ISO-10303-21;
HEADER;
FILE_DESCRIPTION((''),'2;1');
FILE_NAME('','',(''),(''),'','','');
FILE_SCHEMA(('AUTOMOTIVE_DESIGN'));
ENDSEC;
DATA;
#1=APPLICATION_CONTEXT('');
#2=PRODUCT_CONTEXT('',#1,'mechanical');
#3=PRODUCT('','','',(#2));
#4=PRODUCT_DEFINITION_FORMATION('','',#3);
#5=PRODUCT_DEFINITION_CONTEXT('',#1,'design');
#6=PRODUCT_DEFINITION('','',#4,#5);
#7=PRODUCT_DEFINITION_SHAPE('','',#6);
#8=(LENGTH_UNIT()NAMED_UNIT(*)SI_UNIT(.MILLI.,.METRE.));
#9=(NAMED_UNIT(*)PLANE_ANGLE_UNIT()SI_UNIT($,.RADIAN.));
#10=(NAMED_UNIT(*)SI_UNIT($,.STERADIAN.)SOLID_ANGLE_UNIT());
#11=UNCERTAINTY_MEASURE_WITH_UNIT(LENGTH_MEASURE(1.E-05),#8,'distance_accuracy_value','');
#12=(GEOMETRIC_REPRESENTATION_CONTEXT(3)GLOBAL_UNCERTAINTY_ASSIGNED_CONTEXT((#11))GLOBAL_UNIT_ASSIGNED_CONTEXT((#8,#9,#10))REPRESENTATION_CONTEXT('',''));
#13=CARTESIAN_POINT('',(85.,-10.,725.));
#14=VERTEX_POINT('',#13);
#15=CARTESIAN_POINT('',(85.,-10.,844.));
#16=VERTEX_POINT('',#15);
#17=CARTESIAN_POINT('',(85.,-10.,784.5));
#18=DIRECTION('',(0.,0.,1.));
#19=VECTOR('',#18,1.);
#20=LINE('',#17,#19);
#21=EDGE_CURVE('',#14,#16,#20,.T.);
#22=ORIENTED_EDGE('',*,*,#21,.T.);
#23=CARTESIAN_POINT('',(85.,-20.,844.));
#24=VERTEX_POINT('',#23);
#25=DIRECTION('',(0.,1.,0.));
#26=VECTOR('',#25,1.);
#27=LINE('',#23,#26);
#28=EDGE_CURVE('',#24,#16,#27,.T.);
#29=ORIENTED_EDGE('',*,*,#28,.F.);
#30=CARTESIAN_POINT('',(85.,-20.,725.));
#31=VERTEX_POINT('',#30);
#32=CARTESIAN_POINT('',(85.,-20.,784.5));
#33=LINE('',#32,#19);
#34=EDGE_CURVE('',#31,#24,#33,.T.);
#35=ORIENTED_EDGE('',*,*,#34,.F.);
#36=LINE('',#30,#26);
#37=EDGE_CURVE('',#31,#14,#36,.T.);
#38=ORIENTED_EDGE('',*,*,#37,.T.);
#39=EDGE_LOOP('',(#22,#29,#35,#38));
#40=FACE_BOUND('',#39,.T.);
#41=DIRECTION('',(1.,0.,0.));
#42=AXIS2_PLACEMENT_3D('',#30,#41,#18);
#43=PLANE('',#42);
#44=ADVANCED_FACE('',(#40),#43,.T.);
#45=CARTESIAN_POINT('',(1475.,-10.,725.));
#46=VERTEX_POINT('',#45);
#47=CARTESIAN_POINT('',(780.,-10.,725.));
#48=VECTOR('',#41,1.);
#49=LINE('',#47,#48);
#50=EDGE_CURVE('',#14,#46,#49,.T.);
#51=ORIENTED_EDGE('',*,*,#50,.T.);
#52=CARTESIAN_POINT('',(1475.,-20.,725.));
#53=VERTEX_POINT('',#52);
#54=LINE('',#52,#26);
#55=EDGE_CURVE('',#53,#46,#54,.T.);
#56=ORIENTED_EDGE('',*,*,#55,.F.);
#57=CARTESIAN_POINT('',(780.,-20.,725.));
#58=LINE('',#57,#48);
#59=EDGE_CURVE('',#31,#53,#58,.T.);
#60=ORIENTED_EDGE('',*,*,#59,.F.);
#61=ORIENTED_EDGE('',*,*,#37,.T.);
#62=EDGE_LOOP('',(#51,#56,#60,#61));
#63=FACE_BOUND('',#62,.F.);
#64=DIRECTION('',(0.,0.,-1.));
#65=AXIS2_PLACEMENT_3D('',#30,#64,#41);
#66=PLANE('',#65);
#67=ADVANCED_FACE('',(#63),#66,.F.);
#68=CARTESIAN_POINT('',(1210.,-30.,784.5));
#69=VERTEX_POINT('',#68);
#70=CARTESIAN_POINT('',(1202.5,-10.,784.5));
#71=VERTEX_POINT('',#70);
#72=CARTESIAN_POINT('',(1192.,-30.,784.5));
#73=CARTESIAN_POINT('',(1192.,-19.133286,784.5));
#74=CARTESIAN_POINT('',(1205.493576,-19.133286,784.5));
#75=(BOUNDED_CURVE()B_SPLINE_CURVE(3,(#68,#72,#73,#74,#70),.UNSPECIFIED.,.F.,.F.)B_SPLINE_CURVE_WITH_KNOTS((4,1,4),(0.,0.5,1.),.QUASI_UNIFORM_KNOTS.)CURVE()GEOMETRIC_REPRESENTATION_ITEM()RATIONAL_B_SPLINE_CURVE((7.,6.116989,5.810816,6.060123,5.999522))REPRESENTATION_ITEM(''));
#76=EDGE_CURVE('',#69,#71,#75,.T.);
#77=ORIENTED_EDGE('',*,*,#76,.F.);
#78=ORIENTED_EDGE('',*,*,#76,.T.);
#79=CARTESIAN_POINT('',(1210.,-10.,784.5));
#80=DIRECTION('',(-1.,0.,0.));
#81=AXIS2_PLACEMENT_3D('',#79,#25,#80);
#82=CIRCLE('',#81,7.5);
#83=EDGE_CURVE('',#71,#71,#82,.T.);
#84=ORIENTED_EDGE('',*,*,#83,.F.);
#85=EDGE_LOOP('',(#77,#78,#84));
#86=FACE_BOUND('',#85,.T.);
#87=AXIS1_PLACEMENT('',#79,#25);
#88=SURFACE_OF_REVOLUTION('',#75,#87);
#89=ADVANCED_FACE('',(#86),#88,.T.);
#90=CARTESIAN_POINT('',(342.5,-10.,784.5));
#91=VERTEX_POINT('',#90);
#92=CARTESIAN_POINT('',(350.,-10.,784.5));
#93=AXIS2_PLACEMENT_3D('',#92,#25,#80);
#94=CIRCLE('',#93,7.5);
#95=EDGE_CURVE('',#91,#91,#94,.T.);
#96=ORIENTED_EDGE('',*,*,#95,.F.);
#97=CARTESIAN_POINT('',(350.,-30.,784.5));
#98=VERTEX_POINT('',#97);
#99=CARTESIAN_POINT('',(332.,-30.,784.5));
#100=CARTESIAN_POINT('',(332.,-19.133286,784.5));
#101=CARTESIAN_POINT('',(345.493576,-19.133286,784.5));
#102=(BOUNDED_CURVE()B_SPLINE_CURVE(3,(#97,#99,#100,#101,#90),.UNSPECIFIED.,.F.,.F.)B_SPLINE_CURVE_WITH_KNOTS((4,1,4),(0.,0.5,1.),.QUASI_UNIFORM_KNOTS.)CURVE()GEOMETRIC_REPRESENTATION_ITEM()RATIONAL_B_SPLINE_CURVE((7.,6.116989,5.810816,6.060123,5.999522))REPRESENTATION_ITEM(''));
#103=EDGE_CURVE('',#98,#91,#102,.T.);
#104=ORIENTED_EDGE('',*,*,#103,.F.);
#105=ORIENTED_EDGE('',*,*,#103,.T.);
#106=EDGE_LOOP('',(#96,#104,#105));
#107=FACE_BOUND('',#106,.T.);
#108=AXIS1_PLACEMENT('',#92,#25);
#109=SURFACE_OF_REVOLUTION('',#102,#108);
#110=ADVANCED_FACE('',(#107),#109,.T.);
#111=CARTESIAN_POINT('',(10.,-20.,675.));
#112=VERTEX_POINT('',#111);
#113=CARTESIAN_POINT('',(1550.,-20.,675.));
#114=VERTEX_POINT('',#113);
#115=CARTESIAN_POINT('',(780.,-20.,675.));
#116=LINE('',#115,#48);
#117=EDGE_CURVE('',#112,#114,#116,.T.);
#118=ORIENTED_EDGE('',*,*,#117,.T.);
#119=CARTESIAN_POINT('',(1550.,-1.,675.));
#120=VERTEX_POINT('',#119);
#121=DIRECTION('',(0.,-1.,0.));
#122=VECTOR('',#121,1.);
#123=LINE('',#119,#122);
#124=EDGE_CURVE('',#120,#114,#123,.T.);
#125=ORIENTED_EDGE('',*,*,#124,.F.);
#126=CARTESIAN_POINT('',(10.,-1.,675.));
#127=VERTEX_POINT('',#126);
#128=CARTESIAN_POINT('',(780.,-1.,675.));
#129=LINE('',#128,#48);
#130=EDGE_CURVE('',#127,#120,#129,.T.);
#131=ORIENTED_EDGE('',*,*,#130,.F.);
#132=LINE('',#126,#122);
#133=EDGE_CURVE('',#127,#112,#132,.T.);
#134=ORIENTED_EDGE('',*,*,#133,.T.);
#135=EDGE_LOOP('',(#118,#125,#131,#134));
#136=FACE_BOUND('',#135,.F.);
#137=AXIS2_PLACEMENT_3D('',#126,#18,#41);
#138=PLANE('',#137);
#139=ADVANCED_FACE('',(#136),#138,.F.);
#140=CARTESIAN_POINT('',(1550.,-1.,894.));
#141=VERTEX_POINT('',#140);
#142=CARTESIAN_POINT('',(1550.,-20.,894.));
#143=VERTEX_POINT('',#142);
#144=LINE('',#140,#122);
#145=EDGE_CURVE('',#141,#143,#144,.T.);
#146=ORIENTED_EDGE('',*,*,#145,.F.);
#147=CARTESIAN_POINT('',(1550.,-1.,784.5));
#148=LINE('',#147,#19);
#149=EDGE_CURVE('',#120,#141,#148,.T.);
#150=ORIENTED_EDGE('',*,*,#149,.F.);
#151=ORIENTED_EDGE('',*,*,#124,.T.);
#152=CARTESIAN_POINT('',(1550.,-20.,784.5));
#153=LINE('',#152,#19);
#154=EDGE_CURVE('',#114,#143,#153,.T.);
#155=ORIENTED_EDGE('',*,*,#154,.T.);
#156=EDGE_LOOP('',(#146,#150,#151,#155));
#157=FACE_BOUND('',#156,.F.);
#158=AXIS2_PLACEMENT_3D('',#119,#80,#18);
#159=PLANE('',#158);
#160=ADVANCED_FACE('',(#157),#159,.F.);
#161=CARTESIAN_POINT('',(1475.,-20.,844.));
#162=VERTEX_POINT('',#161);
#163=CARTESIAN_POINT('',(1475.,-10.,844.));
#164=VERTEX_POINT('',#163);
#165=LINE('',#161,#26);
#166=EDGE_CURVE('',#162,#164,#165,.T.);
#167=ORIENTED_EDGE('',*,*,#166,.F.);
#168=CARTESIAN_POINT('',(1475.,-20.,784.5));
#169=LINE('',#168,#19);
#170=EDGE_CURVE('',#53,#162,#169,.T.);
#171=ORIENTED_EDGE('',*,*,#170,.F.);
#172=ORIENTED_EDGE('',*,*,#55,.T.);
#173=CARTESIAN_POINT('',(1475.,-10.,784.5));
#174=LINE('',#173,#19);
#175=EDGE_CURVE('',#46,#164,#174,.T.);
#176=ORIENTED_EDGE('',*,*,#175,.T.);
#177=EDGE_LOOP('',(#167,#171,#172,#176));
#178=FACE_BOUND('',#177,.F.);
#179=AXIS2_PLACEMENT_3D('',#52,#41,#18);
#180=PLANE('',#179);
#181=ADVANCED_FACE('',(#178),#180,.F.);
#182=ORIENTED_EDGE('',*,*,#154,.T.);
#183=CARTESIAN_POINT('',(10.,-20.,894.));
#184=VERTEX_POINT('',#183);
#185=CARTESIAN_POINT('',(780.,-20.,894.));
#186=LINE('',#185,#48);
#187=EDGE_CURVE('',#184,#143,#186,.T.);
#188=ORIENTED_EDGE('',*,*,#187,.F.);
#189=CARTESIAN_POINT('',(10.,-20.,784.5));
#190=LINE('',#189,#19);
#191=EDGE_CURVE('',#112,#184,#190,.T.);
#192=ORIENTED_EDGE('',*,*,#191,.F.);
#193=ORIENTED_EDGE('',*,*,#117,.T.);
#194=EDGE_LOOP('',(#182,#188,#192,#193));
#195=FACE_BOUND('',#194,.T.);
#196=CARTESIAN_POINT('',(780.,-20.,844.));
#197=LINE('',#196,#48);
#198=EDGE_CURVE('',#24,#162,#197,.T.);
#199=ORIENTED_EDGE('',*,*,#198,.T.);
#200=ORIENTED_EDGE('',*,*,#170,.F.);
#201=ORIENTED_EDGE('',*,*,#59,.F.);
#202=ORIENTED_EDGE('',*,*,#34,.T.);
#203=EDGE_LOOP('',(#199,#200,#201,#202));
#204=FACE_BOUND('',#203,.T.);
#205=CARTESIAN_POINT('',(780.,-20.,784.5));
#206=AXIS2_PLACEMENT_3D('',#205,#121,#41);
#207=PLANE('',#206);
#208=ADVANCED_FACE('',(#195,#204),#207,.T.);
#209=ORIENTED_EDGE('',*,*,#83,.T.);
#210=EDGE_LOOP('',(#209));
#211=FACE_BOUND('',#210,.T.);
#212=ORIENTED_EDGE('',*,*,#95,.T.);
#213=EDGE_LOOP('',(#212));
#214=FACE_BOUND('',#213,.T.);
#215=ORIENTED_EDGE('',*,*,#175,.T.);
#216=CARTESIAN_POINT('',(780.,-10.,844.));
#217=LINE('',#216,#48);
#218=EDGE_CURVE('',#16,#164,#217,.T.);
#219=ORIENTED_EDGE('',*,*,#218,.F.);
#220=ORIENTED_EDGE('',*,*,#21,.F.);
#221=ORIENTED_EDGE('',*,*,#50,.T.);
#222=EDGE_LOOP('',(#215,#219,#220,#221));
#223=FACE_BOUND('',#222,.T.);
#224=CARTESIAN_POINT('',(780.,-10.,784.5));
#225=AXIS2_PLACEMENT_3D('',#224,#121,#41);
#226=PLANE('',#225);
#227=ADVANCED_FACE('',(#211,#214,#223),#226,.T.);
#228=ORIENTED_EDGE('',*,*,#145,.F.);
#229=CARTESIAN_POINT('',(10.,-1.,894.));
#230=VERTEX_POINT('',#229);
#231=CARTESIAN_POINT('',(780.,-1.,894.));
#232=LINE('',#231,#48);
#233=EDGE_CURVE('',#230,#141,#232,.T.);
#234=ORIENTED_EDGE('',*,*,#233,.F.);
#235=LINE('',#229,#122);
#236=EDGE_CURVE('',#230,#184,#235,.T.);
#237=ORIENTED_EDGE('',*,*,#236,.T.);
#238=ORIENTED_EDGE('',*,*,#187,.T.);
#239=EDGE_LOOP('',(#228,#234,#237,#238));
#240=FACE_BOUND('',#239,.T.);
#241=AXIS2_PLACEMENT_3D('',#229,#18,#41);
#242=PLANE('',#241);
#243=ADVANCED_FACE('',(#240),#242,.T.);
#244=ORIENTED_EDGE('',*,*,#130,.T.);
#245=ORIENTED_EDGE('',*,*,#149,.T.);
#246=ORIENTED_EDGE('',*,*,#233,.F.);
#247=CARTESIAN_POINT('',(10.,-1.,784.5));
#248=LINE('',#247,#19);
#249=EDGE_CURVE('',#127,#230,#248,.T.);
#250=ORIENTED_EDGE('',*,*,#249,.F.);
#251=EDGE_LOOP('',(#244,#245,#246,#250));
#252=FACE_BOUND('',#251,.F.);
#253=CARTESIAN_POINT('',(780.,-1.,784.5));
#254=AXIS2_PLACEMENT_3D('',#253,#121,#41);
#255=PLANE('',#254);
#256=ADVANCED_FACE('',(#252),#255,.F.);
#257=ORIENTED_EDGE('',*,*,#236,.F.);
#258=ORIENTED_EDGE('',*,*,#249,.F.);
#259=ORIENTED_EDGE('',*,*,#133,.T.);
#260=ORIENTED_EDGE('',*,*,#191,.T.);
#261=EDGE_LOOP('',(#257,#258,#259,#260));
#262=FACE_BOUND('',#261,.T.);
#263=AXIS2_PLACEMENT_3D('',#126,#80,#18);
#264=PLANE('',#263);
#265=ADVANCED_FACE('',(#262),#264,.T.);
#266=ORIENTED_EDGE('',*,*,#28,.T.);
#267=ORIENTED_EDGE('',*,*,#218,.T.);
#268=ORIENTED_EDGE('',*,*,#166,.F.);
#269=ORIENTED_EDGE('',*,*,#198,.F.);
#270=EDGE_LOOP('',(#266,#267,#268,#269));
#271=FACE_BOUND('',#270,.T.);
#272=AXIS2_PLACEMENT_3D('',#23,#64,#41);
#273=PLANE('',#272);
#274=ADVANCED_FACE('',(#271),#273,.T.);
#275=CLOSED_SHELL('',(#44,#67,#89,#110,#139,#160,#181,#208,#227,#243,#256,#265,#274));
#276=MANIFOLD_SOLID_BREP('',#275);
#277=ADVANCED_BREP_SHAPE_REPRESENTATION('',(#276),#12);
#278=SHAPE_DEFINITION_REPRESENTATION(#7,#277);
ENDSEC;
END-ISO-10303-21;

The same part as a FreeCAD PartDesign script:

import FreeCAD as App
import Part
import Sketcher


def add_polygon(sketch, points):
    """Adds a closed chain of lines whose ends are joined by coincident constraints."""
    first, n = sketch.GeometryCount, len(points)
    for a, b in zip(points, points[1:] + points[:1]):
        sketch.addGeometry(Part.LineSegment(App.Vector(*a, 0), App.Vector(*b, 0)), False)
    for i in range(n):
        sketch.addConstraint(Sketcher.Constraint("Coincident", first + i, 2, first + (i + 1) % n, 1))

doc = App.newDocument("Part")
body = doc.addObject("PartDesign::Body", "Body")

# Sketch on XZ plane
sketch1 = doc.addObject("Sketcher::SketchObject", "Sketch")
body.addObject(sketch1)
sketch1.AttachmentSupport = (doc.XZ_Plane, [""])
sketch1.MapMode = "FlatFace"
add_polygon(sketch1, [(0, 219), (0, 0), (1540, 0), (1540, 219)])  # lines 0-3
sketch1.addConstraint(Sketcher.Constraint("Vertical", 0))
sketch1.addConstraint(Sketcher.Constraint("Horizontal", 1))
sketch1.addConstraint(Sketcher.Constraint("Vertical", 2))
sketch1.addConstraint(Sketcher.Constraint("Horizontal", 3))
sketch1.addConstraint(Sketcher.Constraint("Coincident", 0, 2, -1, 1))
sketch1.addConstraint(Sketcher.Constraint("DistanceX", 1, 1, 1, 2, 1540.0))
sketch1.addConstraint(Sketcher.Constraint("DistanceY", 0, 2, 0, 1, 219.0))
pad1 = doc.addObject("PartDesign::Pad", "Pad")
body.addObject(pad1)
pad1.Profile = sketch1
pad1.Length = 19

# Sketch on XZ plane
sketch2 = doc.addObject("Sketcher::SketchObject", "Sketch001")
body.addObject(sketch2)
sketch2.AttachmentSupport = (doc.XZ_Plane, [""])
sketch2.MapMode = "FlatFace"
sketch2.AttachmentOffset = App.Placement(App.Vector(0, 0, 19), App.Rotation())
add_polygon(sketch2, [(75, 169), (75, 50), (1465, 50), (1465, 169)])  # lines 0-3
sketch2.addConstraint(Sketcher.Constraint("Vertical", 0))
sketch2.addConstraint(Sketcher.Constraint("Horizontal", 1))
sketch2.addConstraint(Sketcher.Constraint("Vertical", 2))
sketch2.addConstraint(Sketcher.Constraint("Horizontal", 3))
sketch2.addConstraint(Sketcher.Constraint("DistanceX", 1, 1, 1, 2, 1390.0))
sketch2.addConstraint(Sketcher.Constraint("DistanceY", 0, 2, 0, 1, 119.0))
sketch2.addConstraint(Sketcher.Constraint("DistanceX", -1, 1, 0, 2, 75.0))
sketch2.addConstraint(Sketcher.Constraint("DistanceY", -1, 1, 0, 2, 50.0))
pocket1 = doc.addObject("PartDesign::Pocket", "Pocket")
body.addObject(pocket1)
pocket1.Profile = sketch2
pocket1.Length = 10

# Sketch on XY plane
sketch3 = doc.addObject("Sketcher::SketchObject", "Sketch002")
body.addObject(sketch3)
sketch3.AttachmentSupport = (doc.XY_Plane, [""])
sketch3.MapMode = "FlatFace"
sketch3.AttachmentOffset = App.Placement(App.Vector(0, 0, 109.5), App.Rotation())
sketch3.addGeometry(Part.LineSegment(App.Vector(340, -29, 0), App.Vector(340, -9, 0)), False)
sketch3.addGeometry(Part.LineSegment(App.Vector(340, -9, 0), App.Vector(332.5, -9, 0)), False)
sketch3.addGeometry(Part.BSplineCurve([App.Vector(340, -29, 0), App.Vector(322, -29, 0), App.Vector(322, -18.133286, 0), App.Vector(335.493576, -18.133286, 0), App.Vector(332.5, -9, 0)], [4, 1, 4], [0, 0.5, 1], False, 3, [7, 6.116989, 5.810816, 6.060123, 5.999522], False), False)
sketch3.addGeometry(Part.LineSegment(App.Vector(340, -29, 0), App.Vector(340, -9, 0)), True)  # axis
sketch3.addConstraint(Sketcher.Constraint("Block", 2))
sketch3.addConstraint(Sketcher.Constraint("Coincident", 0, 2, 1, 1))
sketch3.addConstraint(Sketcher.Constraint("Coincident", 1, 2, 2, 2))
sketch3.addConstraint(Sketcher.Constraint("Coincident", 2, 1, 0, 1))
sketch3.addConstraint(Sketcher.Constraint("Vertical", 0))
sketch3.addConstraint(Sketcher.Constraint("Horizontal", 1))
sketch3.addConstraint(Sketcher.Constraint("Vertical", 3))
sketch3.addConstraint(Sketcher.Constraint("Coincident", 3, 2, 0, 2))
sketch3.addConstraint(Sketcher.Constraint("Equal", 0, 3))
revolution = doc.addObject("PartDesign::Revolution", "Revolution")
body.addObject(revolution)
revolution.Profile = sketch3
revolution.ReferenceAxis = (sketch3, ["Axis0"])
revolution.Angle = 360

# Sketch on XY plane
sketch4 = doc.addObject("Sketcher::SketchObject", "Sketch003")
body.addObject(sketch4)
sketch4.AttachmentSupport = (doc.XY_Plane, [""])
sketch4.MapMode = "FlatFace"
sketch4.AttachmentOffset = App.Placement(App.Vector(0, 0, 109.5), App.Rotation())
sketch4.addGeometry(Part.LineSegment(App.Vector(1200, -29, 0), App.Vector(1200, -9, 0)), False)
sketch4.addGeometry(Part.LineSegment(App.Vector(1200, -9, 0), App.Vector(1192.5, -9, 0)), False)
sketch4.addGeometry(Part.BSplineCurve([App.Vector(1200, -29, 0), App.Vector(1182, -29, 0), App.Vector(1182, -18.133286, 0), App.Vector(1195.493576, -18.133286, 0), App.Vector(1192.5, -9, 0)], [4, 1, 4], [0, 0.5, 1], False, 3, [7, 6.116989, 5.810816, 6.060123, 5.999522], False), False)
sketch4.addGeometry(Part.LineSegment(App.Vector(1200, -29, 0), App.Vector(1200, -9, 0)), True)  # axis
sketch4.addConstraint(Sketcher.Constraint("Block", 2))
sketch4.addConstraint(Sketcher.Constraint("Coincident", 0, 2, 1, 1))
sketch4.addConstraint(Sketcher.Constraint("Coincident", 1, 2, 2, 2))
sketch4.addConstraint(Sketcher.Constraint("Coincident", 2, 1, 0, 1))
sketch4.addConstraint(Sketcher.Constraint("Vertical", 0))
sketch4.addConstraint(Sketcher.Constraint("Horizontal", 1))
sketch4.addConstraint(Sketcher.Constraint("Vertical", 3))
sketch4.addConstraint(Sketcher.Constraint("Coincident", 3, 2, 0, 2))
sketch4.addConstraint(Sketcher.Constraint("Equal", 0, 3))
revolution2 = doc.addObject("PartDesign::Revolution", "Revolution001")
body.addObject(revolution2)
revolution2.Profile = sketch4
revolution2.ReferenceAxis = (sketch4, ["Axis0"])
revolution2.Angle = 360
body2 = doc.addObject("PartDesign::Body", "Body001")
doc.recompute()

body.Placement = App.Placement(App.Vector(10, -1, 675), App.Rotation(App.Vector(0, 0, 1), 0))
boolean = doc.addObject("PartDesign::Boolean", "Boolean")
body2.addObject(boolean)
boolean.Type = "Fuse"
boolean.addObjects([body])

doc.recompute()
